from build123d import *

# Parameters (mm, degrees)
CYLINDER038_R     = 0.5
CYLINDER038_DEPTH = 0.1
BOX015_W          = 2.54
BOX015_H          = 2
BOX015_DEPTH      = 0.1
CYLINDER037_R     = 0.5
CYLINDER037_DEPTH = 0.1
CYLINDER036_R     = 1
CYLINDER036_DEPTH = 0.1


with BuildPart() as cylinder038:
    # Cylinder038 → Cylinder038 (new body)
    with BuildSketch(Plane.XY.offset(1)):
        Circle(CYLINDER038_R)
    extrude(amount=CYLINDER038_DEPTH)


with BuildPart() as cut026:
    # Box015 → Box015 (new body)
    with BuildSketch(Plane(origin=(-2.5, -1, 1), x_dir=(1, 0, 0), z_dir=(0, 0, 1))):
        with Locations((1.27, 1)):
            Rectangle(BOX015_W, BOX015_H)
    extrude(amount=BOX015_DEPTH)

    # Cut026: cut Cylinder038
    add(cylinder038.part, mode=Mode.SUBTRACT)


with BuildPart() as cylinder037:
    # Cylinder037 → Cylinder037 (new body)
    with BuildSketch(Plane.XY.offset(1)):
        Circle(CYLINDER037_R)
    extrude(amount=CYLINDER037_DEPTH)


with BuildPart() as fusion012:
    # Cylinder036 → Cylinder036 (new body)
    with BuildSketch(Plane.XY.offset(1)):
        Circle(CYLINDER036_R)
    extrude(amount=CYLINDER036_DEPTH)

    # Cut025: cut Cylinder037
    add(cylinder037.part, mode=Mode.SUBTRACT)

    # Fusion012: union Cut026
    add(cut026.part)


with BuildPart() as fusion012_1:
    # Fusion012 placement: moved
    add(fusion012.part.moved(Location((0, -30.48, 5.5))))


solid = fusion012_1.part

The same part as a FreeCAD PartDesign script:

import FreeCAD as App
import Part
import Sketcher

V = App.Vector
Q = App.Units.Quantity

doc = App.newDocument("Part")
body = doc.addObject("PartDesign::Body", "Body")

sketch1 = body.newObject("Sketcher::SketchObject", "Sketch")
sketch1.AttachmentSupport = (doc.getObject("XY_Plane"), [""])
sketch1.MapMode = "FlatFace"
sketch1.AttachmentOffset = App.Placement(V(0, 0, 1), App.Rotation())
sketch1.addGeometry(Part.Circle(V(0, 0, 0), V(0, 0, 1), 0.5), False)
sketch1.addConstraint(Sketcher.Constraint("Coincident", 0, 3, -1, 1))
sketch1.addConstraint(Sketcher.Constraint("Diameter", 0, Q("1 mm")))
pad1 = body.newObject("PartDesign::Pad", "Pad")
pad1.Profile = sketch1
pad1.Length = 0.1
body2 = doc.addObject("PartDesign::Body", "Body001")

sketch2 = body2.newObject("Sketcher::SketchObject", "Sketch001")
sketch2.AttachmentSupport = (doc.getObject("XY_Plane001"), [""])
sketch2.MapMode = "FlatFace"
sketch2.AttachmentOffset = App.Placement(V(0, 0, 1), App.Rotation())
sketch2.addGeometry(Part.LineSegment(V(-2.5, 1, 0), V(-2.5, -1, 0)), False)
sketch2.addGeometry(Part.LineSegment(V(-2.5, -1, 0), V(0.04, -1, 0)), False)
sketch2.addGeometry(Part.LineSegment(V(0.04, -1, 0), V(0.04, 1, 0)), False)
sketch2.addGeometry(Part.LineSegment(V(0.04, 1, 0), V(-2.5, 1, 0)), False)
sketch2.addConstraint(Sketcher.Constraint("Coincident", 0, 2, 1, 1))
sketch2.addConstraint(Sketcher.Constraint("Coincident", 1, 2, 2, 1))
sketch2.addConstraint(Sketcher.Constraint("Coincident", 2, 2, 3, 1))
sketch2.addConstraint(Sketcher.Constraint("Coincident", 3, 2, 0, 1))
sketch2.addConstraint(Sketcher.Constraint("Vertical", 0))
sketch2.addConstraint(Sketcher.Constraint("Horizontal", 1))
sketch2.addConstraint(Sketcher.Constraint("Vertical", 2))
sketch2.addConstraint(Sketcher.Constraint("Horizontal", 3))
sketch2.addConstraint(Sketcher.Constraint("DistanceY", 0, 2, 0, 1, Q("2 mm")))
sketch2.addConstraint(Sketcher.Constraint("DistanceY", 0, 2, -1, 1, Q("1 mm")))
sketch2.addConstraint(Sketcher.Constraint("DistanceX", 1, 1, 1, 2, Q("2.54 mm")))
sketch2.addConstraint(Sketcher.Constraint("DistanceX", 0, 2, -1, 1, Q("2.5 mm")))
pad2 = body2.newObject("PartDesign::Pad", "Pad001")
pad2.Profile = sketch2
pad2.Length = 0.1
doc.recompute()

boolean = body2.newObject("PartDesign::Boolean", "Boolean")
boolean.Type = "Cut"
boolean.addObjects([body])
body3 = doc.addObject("PartDesign::Body", "Body002")

sketch3 = body3.newObject("Sketcher::SketchObject", "Sketch002")
sketch3.AttachmentSupport = (doc.getObject("XY_Plane002"), [""])
sketch3.MapMode = "FlatFace"
sketch3.AttachmentOffset = App.Placement(V(0, 0, 1), App.Rotation())
sketch3.addGeometry(Part.Circle(V(0, 0, 0), V(0, 0, 1), 0.5), False)
sketch3.addConstraint(Sketcher.Constraint("Coincident", 0, 3, -1, 1))
sketch3.addConstraint(Sketcher.Constraint("Diameter", 0, Q("1 mm")))
pad3 = body3.newObject("PartDesign::Pad", "Pad002")
pad3.Profile = sketch3
pad3.Length = 0.1
body4 = doc.addObject("PartDesign::Body", "Body003")

sketch4 = body4.newObject("Sketcher::SketchObject", "Sketch003")
sketch4.AttachmentSupport = (doc.getObject("XY_Plane003"), [""])
sketch4.MapMode = "FlatFace"
sketch4.AttachmentOffset = App.Placement(V(0, 0, 1), App.Rotation())
sketch4.addGeometry(Part.Circle(V(0, 0, 0), V(0, 0, 1), 1), False)
sketch4.addConstraint(Sketcher.Constraint("Coincident", 0, 3, -1, 1))
sketch4.addConstraint(Sketcher.Constraint("Diameter", 0, Q("2 mm")))
pad4 = body4.newObject("PartDesign::Pad", "Pad003")
pad4.Profile = sketch4
pad4.Length = 0.1
doc.recompute()

boolean2 = body4.newObject("PartDesign::Boolean", "Boolean001")
boolean2.Type = "Cut"
boolean2.addObjects([body3])
doc.recompute()

boolean3 = body4.newObject("PartDesign::Boolean", "Boolean002")
boolean3.Type = "Fuse"
boolean3.addObjects([body2])
body5 = doc.addObject("PartDesign::Body", "Body004")
doc.recompute()

body4.Placement = App.Placement(V(0, -30.48, 5.5), App.Rotation(V(0, 0, 1), 0))
boolean4 = body5.newObject("PartDesign::Boolean", "Boolean003")
boolean4.Type = "Fuse"
boolean4.addObjects([body4])

doc.recompute()
